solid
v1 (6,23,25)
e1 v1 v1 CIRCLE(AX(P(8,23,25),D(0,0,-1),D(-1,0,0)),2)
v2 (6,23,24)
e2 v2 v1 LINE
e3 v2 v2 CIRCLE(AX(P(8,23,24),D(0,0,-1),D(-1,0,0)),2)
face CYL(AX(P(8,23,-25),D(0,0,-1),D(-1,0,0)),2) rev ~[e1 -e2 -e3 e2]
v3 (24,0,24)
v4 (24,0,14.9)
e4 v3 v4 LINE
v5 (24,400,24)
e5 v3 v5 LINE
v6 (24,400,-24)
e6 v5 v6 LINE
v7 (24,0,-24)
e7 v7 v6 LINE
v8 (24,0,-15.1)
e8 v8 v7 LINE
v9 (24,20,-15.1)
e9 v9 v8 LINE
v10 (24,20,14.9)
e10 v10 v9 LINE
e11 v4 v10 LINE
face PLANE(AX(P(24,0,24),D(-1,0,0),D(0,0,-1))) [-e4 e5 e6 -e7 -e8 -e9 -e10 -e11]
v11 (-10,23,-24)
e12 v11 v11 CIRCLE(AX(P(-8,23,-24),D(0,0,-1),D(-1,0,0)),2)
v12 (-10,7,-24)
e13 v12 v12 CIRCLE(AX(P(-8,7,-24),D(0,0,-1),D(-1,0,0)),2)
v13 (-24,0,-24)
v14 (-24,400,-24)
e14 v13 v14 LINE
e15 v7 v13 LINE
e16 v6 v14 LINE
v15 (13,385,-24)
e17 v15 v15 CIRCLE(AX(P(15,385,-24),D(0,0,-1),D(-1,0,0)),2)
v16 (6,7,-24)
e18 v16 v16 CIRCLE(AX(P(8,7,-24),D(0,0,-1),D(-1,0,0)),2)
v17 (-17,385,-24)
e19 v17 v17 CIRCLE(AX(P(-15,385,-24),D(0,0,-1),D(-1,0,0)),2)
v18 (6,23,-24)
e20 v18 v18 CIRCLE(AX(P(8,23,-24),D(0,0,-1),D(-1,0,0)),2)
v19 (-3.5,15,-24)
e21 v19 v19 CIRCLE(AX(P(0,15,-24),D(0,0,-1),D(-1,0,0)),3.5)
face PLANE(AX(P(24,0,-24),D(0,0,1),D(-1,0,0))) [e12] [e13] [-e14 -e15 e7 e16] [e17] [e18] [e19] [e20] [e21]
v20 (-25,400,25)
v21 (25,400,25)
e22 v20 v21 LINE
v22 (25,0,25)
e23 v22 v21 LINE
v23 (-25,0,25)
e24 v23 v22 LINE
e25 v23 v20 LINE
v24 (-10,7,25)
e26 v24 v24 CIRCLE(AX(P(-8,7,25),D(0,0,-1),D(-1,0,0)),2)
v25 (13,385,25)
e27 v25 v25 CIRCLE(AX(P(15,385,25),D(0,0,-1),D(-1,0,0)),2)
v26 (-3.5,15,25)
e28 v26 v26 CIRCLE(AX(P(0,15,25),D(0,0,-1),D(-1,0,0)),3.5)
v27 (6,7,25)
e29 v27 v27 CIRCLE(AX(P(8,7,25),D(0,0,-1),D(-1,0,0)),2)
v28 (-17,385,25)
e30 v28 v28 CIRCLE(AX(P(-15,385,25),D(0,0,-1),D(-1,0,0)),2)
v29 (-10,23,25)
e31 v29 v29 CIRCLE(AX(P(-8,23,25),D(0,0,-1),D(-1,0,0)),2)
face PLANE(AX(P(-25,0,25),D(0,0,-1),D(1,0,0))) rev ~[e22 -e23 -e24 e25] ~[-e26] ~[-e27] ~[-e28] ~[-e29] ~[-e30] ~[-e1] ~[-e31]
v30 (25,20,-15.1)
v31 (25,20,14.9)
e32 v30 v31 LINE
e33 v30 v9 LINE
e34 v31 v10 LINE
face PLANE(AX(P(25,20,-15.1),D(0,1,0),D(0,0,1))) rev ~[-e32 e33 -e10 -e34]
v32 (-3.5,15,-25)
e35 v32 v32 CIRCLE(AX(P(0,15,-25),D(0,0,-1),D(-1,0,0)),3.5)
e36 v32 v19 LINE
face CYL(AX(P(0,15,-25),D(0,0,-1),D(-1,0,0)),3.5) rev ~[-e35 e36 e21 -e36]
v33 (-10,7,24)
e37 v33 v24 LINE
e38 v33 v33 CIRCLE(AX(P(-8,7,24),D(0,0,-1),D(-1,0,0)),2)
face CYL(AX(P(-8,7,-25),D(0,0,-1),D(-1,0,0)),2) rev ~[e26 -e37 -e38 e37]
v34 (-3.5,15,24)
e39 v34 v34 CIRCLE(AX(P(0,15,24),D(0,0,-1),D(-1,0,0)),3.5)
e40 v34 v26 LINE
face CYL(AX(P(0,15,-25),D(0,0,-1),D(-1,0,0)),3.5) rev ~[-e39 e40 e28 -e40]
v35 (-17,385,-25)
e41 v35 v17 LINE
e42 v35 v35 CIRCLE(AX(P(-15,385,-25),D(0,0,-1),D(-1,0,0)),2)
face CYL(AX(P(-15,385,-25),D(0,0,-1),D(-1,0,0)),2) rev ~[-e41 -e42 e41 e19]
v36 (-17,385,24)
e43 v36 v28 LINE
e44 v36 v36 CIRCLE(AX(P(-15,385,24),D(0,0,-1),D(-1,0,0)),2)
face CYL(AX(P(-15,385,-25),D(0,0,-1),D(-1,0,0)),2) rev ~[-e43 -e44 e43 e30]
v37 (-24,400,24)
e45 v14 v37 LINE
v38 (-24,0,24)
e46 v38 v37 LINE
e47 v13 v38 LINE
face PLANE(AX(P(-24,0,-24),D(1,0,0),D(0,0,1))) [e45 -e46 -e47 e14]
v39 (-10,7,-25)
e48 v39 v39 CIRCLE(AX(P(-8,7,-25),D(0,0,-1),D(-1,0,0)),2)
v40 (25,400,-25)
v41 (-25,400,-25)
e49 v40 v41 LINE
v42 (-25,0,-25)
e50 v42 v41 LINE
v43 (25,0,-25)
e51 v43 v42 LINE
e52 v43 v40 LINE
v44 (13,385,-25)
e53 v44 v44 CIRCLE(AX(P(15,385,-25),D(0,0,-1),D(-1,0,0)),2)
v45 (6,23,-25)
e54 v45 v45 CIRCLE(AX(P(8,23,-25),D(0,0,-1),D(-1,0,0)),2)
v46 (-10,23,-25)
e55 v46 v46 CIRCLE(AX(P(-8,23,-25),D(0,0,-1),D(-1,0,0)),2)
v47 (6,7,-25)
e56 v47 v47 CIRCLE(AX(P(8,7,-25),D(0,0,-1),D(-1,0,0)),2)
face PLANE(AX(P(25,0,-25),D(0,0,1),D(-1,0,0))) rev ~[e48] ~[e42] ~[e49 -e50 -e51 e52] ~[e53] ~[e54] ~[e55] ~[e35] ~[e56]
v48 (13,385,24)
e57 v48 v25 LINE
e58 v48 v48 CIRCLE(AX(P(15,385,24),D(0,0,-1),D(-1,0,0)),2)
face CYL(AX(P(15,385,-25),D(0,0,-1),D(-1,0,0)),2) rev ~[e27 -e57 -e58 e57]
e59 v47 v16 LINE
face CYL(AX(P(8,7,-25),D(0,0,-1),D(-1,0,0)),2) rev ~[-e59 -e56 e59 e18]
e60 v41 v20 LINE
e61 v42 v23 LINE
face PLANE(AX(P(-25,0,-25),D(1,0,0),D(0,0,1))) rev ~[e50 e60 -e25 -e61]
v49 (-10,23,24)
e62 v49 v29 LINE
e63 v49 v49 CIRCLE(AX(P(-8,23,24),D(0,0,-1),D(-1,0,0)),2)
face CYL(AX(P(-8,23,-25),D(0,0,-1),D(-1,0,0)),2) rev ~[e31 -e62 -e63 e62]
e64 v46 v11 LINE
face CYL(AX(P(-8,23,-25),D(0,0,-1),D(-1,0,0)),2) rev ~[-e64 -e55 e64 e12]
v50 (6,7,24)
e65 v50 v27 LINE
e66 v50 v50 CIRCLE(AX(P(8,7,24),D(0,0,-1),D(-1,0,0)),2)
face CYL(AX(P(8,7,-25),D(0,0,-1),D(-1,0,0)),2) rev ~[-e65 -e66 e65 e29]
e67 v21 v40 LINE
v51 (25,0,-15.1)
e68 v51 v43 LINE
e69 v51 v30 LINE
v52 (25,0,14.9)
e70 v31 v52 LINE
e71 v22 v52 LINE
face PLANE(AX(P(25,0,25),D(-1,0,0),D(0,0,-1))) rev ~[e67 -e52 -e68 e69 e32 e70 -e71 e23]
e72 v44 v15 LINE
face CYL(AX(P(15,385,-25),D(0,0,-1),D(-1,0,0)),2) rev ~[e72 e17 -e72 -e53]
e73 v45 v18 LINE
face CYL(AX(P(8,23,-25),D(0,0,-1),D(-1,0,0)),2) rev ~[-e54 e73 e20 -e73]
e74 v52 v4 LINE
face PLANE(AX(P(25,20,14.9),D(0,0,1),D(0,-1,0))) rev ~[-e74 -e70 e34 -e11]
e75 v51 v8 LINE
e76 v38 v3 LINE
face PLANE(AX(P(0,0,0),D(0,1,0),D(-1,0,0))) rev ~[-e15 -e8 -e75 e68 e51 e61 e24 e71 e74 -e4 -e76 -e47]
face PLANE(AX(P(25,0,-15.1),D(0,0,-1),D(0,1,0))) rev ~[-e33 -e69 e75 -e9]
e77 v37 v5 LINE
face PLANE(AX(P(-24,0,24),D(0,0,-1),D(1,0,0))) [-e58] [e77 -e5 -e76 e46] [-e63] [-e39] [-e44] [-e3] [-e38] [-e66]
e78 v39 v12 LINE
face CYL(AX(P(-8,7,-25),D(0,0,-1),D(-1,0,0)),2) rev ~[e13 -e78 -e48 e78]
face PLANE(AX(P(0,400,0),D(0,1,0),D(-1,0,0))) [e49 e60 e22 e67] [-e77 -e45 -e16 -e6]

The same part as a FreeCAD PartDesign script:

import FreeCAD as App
import Part
import Sketcher


def add_polygon(sketch, points):
    """Adds a closed chain of lines whose ends are joined by coincident constraints."""
    first, n = sketch.GeometryCount, len(points)
    for a, b in zip(points, points[1:] + points[:1]):
        sketch.addGeometry(Part.LineSegment(App.Vector(*a, 0), App.Vector(*b, 0)), False)
    for i in range(n):
        sketch.addConstraint(Sketcher.Constraint("Coincident", first + i, 2, first + (i + 1) % n, 1))

doc = App.newDocument("Part")
body = doc.addObject("PartDesign::Body", "Body")

# Sketch on XZ plane
sketch1 = body.newObject("Sketcher::SketchObject", "Sketch")
sketch1.AttachmentSupport = (doc.getObject("XZ_Plane"), [""])
sketch1.MapMode = "FlatFace"
add_polygon(sketch1, [(-25, -25), (-25, 25), (25, 25), (25, -25)])  # lines 0-3
add_polygon(sketch1, [(24, 24), (-24, 24), (-24, -24), (24, -24)])  # lines 4-7
sketch1.addConstraint([
    Sketcher.Constraint("Vertical", 0),
    Sketcher.Constraint("Horizontal", 1),
    Sketcher.Constraint("Vertical", 2),
    Sketcher.Constraint("Horizontal", 3),
    Sketcher.Constraint("Horizontal", 4),
    Sketcher.Constraint("Vertical", 5),
    Sketcher.Constraint("Horizontal", 6),
    Sketcher.Constraint("Vertical", 7),
    Sketcher.Constraint("Symmetric", 0, 2, 2, 2, -1, 1),
    Sketcher.Constraint("Symmetric", 4, 2, 6, 2, -1, 1),
    Sketcher.Constraint("Equal", 3, 0),
    Sketcher.Constraint("Equal", 6, 5),
    Sketcher.Constraint("DistanceX", 1, 1, 1, 2, 50.0),
    Sketcher.Constraint("DistanceX", 4, 2, 4, 1, 48.0),
])
pad1 = body.newObject("PartDesign::Pad", "Pad")
pad1.Profile = sketch1
pad1.Length = 400
pad1.Reversed = True

# Sketch on XY plane
sketch2 = body.newObject("Sketcher::SketchObject", "Sketch001")
sketch2.AttachmentSupport = (doc.getObject("XY_Plane"), [""])
sketch2.MapMode = "FlatFace"
sketch2.AttachmentOffset = App.Placement(App.Vector(0, 0, -25), App.Rotation())
sketch2.addGeometry([
    Part.Circle(App.Vector(-15, 385, 0), App.Vector(0, 0, 1), 2),  # 0
    Part.Circle(App.Vector(15, 385, 0), App.Vector(0, 0, 1), 2),  # 1
    Part.Circle(App.Vector(0, 15, 0), App.Vector(0, 0, 1), 3.5),  # 2
    Part.Circle(App.Vector(8, 23, 0), App.Vector(0, 0, 1), 2),  # 3
    Part.Circle(App.Vector(-8, 23, 0), App.Vector(0, 0, 1), 2),  # 4
    Part.Circle(App.Vector(-8, 7, 0), App.Vector(0, 0, 1), 2),  # 5
    Part.Circle(App.Vector(8, 7, 0), App.Vector(0, 0, 1), 2),  # 6
], False)
sketch2.addConstraint([
    Sketcher.Constraint("Equal", 0, 1),
    Sketcher.Constraint("Equal", 1, 3),
    Sketcher.Constraint("Equal", 3, 4),
    Sketcher.Constraint("Equal", 4, 5),
    Sketcher.Constraint("Equal", 5, 6),
    Sketcher.Constraint("Symmetric", 0, 3, 1, 3, -2),
    Sketcher.Constraint("Symmetric", 3, 3, 4, 3, -2),
    Sketcher.Constraint("Symmetric", 5, 3, 6, 3, -2),
    Sketcher.Constraint("PointOnObject", 2, 3, -2),
    Sketcher.Constraint("Vertical", 4, 3, 5, 3),
    Sketcher.Constraint("Diameter", 0, 4.0),
    Sketcher.Constraint("Diameter", 2, 7.0),
    Sketcher.Constraint("DistanceX", 0, 3, -1, 1, 15.0),
    Sketcher.Constraint("DistanceY", -1, 1, 2, 3, 15.0),
    Sketcher.Constraint("DistanceY", -1, 1, 5, 3, 7.0),
    Sketcher.Constraint("DistanceX", 3, 3, 1, 3, 7.0),
    Sketcher.Constraint("DistanceY", 5, 3, 4, 3, 16.0),
    Sketcher.Constraint("DistanceY", -1, 1, 0, 3, 385.0),
])
pocket1 = body.newObject("PartDesign::Pocket", "Pocket")
pocket1.Profile = sketch2
pocket1.Length = 50
pocket1.Reversed = True

# Sketch on YZ plane
sketch3 = body.newObject("Sketcher::SketchObject", "Sketch002")
sketch3.AttachmentSupport = (doc.getObject("YZ_Plane"), [""])
sketch3.MapMode = "FlatFace"
sketch3.AttachmentOffset = App.Placement(App.Vector(0, 0, 25), App.Rotation())
add_polygon(sketch3, [(20, 15), (0, 15), (0, -15), (20, -15)])  # lines 0-3
sketch3.addConstraint([
    Sketcher.Constraint("Horizontal", 0),
    Sketcher.Constraint("Vertical", 1),
    Sketcher.Constraint("Horizontal", 2),
    Sketcher.Constraint("Vertical", 3),
    Sketcher.Constraint("PointOnObject", 0, 2, -2),
    Sketcher.Constraint("DistanceX", 0, 2, 0, 1, 20.0),
    Sketcher.Constraint("DistanceY", 1, 2, 1, 1, 30.0),
    Sketcher.Constraint("DistanceY", -1, 1, 0, 2, 14.9),
])
pocket2 = body.newObject("PartDesign::Pocket", "Pocket001")
pocket2.Profile = sketch3
pocket2.Length = 10

doc.recompute()
